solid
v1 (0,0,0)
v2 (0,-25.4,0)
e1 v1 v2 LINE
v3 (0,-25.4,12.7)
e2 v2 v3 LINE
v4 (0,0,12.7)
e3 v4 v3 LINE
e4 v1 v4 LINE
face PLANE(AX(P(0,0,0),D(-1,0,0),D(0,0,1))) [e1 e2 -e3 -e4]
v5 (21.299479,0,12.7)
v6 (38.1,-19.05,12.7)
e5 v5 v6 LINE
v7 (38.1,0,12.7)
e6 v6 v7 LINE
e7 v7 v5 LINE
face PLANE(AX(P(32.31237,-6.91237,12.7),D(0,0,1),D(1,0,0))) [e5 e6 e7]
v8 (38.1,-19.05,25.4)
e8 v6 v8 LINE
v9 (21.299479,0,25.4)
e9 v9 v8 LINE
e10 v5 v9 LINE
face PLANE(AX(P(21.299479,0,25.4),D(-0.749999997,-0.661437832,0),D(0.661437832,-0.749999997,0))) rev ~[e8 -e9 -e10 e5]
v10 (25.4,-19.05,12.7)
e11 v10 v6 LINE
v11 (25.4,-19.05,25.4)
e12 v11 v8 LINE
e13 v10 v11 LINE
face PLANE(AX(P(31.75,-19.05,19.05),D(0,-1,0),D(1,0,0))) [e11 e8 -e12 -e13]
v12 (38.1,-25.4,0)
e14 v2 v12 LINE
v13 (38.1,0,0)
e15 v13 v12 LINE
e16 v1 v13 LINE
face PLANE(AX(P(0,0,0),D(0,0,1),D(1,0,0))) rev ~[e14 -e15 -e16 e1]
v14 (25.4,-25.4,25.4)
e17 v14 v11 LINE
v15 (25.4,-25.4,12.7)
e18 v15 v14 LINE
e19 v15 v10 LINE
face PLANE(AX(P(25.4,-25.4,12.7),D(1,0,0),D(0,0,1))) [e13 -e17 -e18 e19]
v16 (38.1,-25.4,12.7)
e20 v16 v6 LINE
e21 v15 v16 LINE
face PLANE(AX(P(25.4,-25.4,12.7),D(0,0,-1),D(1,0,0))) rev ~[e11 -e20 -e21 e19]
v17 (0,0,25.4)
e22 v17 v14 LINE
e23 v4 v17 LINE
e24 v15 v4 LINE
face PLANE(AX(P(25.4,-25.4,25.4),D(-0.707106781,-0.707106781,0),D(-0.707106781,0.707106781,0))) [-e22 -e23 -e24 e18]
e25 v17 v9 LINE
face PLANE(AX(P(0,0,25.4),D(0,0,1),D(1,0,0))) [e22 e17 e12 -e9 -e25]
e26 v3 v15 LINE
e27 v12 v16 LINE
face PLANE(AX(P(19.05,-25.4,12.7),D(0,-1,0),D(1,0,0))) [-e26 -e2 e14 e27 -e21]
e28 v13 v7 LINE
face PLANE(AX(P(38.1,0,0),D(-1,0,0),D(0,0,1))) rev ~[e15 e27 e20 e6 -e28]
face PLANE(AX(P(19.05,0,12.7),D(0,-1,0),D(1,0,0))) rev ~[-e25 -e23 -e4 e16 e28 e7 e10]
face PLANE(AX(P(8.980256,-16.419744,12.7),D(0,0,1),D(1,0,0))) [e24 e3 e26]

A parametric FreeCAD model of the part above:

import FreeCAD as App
import Part
import Sketcher
Q = App.Units.Quantity

doc = App.newDocument("Part")
body = doc.addObject("PartDesign::Body", "Body")

sketch1 = body.newObject("Sketcher::SketchObject", "Sketch")
sketch1.AttachmentSupport = (doc.getObject("XZ_Plane"), [""])
sketch1.MapMode = "FlatFace"
sketch1.addGeometry([
    Part.LineSegment(App.Vector(0, 25.4, 0), App.Vector(0, 0, 0)),
    Part.LineSegment(App.Vector(0, 0, 0), App.Vector(38.1, 0, 0)),
    Part.LineSegment(App.Vector(38.1, 0, 0), App.Vector(38.1, 25.4, 0)),
    Part.LineSegment(App.Vector(38.1, 25.4, 0), App.Vector(0, 25.4, 0)),
], False)
sketch1.addConstraint([
    Sketcher.Constraint("Coincident", 0, 2, 1, 1),
    Sketcher.Constraint("Coincident", 1, 2, 2, 1),
    Sketcher.Constraint("Coincident", 2, 2, 3, 1),
    Sketcher.Constraint("Coincident", 3, 2, 0, 1),
    Sketcher.Constraint("Vertical", 0),
    Sketcher.Constraint("Horizontal", 1),
    Sketcher.Constraint("Vertical", 2),
    Sketcher.Constraint("Horizontal", 3),
    Sketcher.Constraint("Coincident", 0, 2, -1, 1),
    Sketcher.Constraint("DistanceY", 0, 2, 0, 1, Q("1 in")),
    Sketcher.Constraint("DistanceX", 1, 1, 1, 2, Q("1.5 in")),
])
pad1 = body.newObject("PartDesign::Pad", "Pad")
pad1.Profile = sketch1
pad1.Length = Q("1 in")

sketch2 = body.newObject("Sketcher::SketchObject", "Sketch001")
sketch2.AttachmentSupport = (doc.getObject("XZ_Plane"), [""])
sketch2.MapMode = "FlatFace"
sketch2.AttachmentOffset = App.Placement(App.Vector(0, 0, 1 * 25.4), App.Rotation())
sketch2.addGeometry([
    Part.LineSegment(App.Vector(25.4, 25.4, 0), App.Vector(25.4, 12.7, 0)),
    Part.LineSegment(App.Vector(25.4, 12.7, 0), App.Vector(38.1, 12.7, 0)),
    Part.LineSegment(App.Vector(38.1, 12.7, 0), App.Vector(38.1, 25.4, 0)),
    Part.LineSegment(App.Vector(38.1, 25.4, 0), App.Vector(25.4, 25.4, 0)),
], False)
sketch2.addConstraint([
    Sketcher.Constraint("Coincident", 0, 2, 1, 1),
    Sketcher.Constraint("Coincident", 1, 2, 2, 1),
    Sketcher.Constraint("Coincident", 2, 2, 3, 1),
    Sketcher.Constraint("Coincident", 3, 2, 0, 1),
    Sketcher.Constraint("Vertical", 0),
    Sketcher.Constraint("Horizontal", 1),
    Sketcher.Constraint("Vertical", 2),
    Sketcher.Constraint("Horizontal", 3),
    Sketcher.Constraint("Equal", 3, 0),
    Sketcher.Constraint("DistanceX", 1, 1, 1, 2, Q("0.5 in")),
    Sketcher.Constraint("DistanceX", -1, 1, 0, 2, Q("1 in")),
    Sketcher.Constraint("DistanceY", -1, 1, 2, 2, Q("1 in")),
])
pocket1 = body.newObject("PartDesign::Pocket", "Pocket")
pocket1.Profile = sketch2
pocket1.Length = Q("0.25 in")

sketch3 = body.newObject("Sketcher::SketchObject", "Sketch002")
sketch3.AttachmentSupport = (doc.getObject("XY_Plane"), [""])
sketch3.MapMode = "FlatFace"
sketch3.AttachmentOffset = App.Placement(App.Vector(0, 0, 1 * 25.4), App.Rotation())
sketch3.addGeometry([
    Part.LineSegment(App.Vector(25.4, -25.4, 0), App.Vector(0, 0, 0)),
    Part.LineSegment(App.Vector(0, 0, 0), App.Vector(0, -25.4, 0)),
    Part.LineSegment(App.Vector(0, -25.4, 0), App.Vector(25.4, -25.4, 0)),
    Part.LineSegment(App.Vector(38.1, 0, 0), App.Vector(21.299479, 0, 0)),
    Part.LineSegment(App.Vector(21.299479, 0, 0), App.Vector(38.1, -19.05, 0)),
    Part.LineSegment(App.Vector(38.1, -19.05, 0), App.Vector(38.1, 0, 0)),
], False)
sketch3.addConstraint([
    Sketcher.Constraint("Coincident", 0, 2, 1, 1),
    Sketcher.Constraint("Coincident", 1, 2, 2, 1),
    Sketcher.Constraint("Coincident", 2, 2, 0, 1),
    Sketcher.Constraint("Coincident", 3, 2, 4, 1),
    Sketcher.Constraint("Coincident", 4, 2, 5, 1),
    Sketcher.Constraint("Coincident", 5, 2, 3, 1),
    Sketcher.Constraint("Vertical", 1),
    Sketcher.Constraint("Horizontal", 2),
    Sketcher.Constraint("Horizontal", 3),
    Sketcher.Constraint("Vertical", 5),
    Sketcher.Constraint("Coincident", 0, 2, -1, 1),
    Sketcher.Constraint("PointOnObject", 3, 2, -1),
    Sketcher.Constraint("Equal", 2, 1),
    Sketcher.Constraint("DistanceX", 2, 1, 2, 2, Q("1 in")),
    Sketcher.Constraint("Distance", 4, Q("1 in")),
    Sketcher.Constraint("DistanceY", 5, 1, 5, 2, Q("0.75 in")),
    Sketcher.Constraint("DistanceX", -1, 1, 4, 2, Q("1.5 in")),
])
pocket2 = body.newObject("PartDesign::Pocket", "Pocket001")
pocket2.Profile = sketch3
pocket2.Length = Q("1 in")
pocket2.Midplane = True

doc.recompute()
